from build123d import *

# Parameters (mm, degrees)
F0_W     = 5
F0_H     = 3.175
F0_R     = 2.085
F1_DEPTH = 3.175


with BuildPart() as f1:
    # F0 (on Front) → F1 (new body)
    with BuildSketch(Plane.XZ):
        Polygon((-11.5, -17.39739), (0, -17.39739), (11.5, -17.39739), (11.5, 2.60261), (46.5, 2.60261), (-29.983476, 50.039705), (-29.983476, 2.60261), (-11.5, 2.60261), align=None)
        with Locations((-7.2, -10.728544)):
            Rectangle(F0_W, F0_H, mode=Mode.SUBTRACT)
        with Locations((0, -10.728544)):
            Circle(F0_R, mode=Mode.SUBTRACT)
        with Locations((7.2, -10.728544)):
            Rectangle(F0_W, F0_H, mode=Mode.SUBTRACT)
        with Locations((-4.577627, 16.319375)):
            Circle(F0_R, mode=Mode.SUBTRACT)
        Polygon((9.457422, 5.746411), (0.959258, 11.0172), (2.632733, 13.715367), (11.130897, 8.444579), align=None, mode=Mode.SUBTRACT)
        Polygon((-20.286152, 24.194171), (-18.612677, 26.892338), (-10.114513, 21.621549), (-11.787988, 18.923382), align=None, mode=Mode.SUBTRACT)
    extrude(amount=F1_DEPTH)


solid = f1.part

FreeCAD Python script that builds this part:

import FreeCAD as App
import Part
import Sketcher
from FreeCAD import Vector
Q = App.Units.Quantity


def add_polygon(sketch, points):
    """Adds a closed chain of lines whose ends are joined by coincident constraints."""
    first, n = sketch.GeometryCount, len(points)
    for a, b in zip(points, points[1:] + points[:1]):
        sketch.addGeometry(Part.LineSegment(App.Vector(*a, 0), App.Vector(*b, 0)), False)
    for i in range(n):
        sketch.addConstraint(Sketcher.Constraint("Coincident", first + i, 2, first + (i + 1) % n, 1))

doc = App.newDocument("Part")
params = doc.addObject("Spreadsheet::Sheet", "Params")
for row, (alias, value) in enumerate([
    ("sketch1_diameter", "4.17 mm"),
    ("sketch1_width", "23 mm"),
    ("sketch1_width2", "35 mm"),
    ("sketch1_width3", "5 mm"),
    ("sketch1_height", "20 mm"),
    ("pad1_length", "3.175 mm"),
], start=1):
    params.set(f"A{row}", alias)
    params.set(f"B{row}", "=" + value)
    params.setAlias(f"B{row}", alias)

body = doc.addObject("PartDesign::Body", "Body")

# Sketch on XZ plane
sketch1 = body.newObject("Sketcher::SketchObject", "Sketch")
sketch1.AttachmentSupport = (doc.getObject("XZ_Plane"), [""])
sketch1.MapMode = "FlatFace"
add_polygon(sketch1, [(-11.5, -17.39739), (11.5, -17.39739), (11.5, 2.60261), (46.5, 2.60261), (-29.983476, 50.039705), (-29.983476, 2.60261), (-11.5, 2.60261)])  # lines 0-6
add_polygon(sketch1, [(-4.7, -12.316044), (-9.7, -12.316044), (-9.7, -9.141044), (-4.7, -9.141044)])  # lines 7-10
sketch1.addGeometry(Part.Circle(Vector(0, -10.728544, 0), Vector(0, 0, 1), 2.085), False)  # 11
add_polygon(sketch1, [(9.7, -12.316044), (4.7, -12.316044), (4.7, -9.141044), (9.7, -9.141044)])  # lines 12-15
add_polygon(sketch1, [(-11.787988, 18.923382), (-20.286152, 24.194171), (-18.612677, 26.892338), (-10.114513, 21.621549)])  # lines 16-19
sketch1.addGeometry(Part.Circle(Vector(-4.577627, 16.319375, 0), Vector(0, 0, 1), 2.085), False)  # 20
add_polygon(sketch1, [(11.130897, 8.444579), (9.457422, 5.746411), (0.959258, 11.0172), (2.632733, 13.715367)])  # lines 21-24
sketch1.addConstraint([
    Sketcher.Constraint("Horizontal", 0),
    Sketcher.Constraint("Vertical", 1),
    Sketcher.Constraint("Horizontal", 2),
    Sketcher.Constraint("Vertical", 4),
    Sketcher.Constraint("Horizontal", 5),
    Sketcher.Constraint("Vertical", 6),
    Sketcher.Constraint("Horizontal", 7),
    Sketcher.Constraint("Vertical", 8),
    Sketcher.Constraint("Horizontal", 9),
    Sketcher.Constraint("Vertical", 10),
    Sketcher.Constraint("Horizontal", 12),
    Sketcher.Constraint("Vertical", 13),
    Sketcher.Constraint("Horizontal", 14),
    Sketcher.Constraint("Vertical", 15),
    Sketcher.Constraint("Equal", 11, 20),
    Sketcher.Constraint("Symmetric", 1, 2, 5, 2, -2),
    Sketcher.Constraint("Symmetric", 10, 2, 12, 2, -2),
    Sketcher.Constraint("Symmetric", 8, 2, 14, 2, -2),
    Sketcher.Constraint("PointOnObject", 11, 3, -2),
    Sketcher.Constraint("Parallel", 3, 16),
    Sketcher.Constraint("Perpendicular", 16, 17),
    Sketcher.Constraint("Perpendicular", 17, 18),
    Sketcher.Constraint("Perpendicular", 18, 19),
    Sketcher.Constraint("Parallel", 19, 21),
    Sketcher.Constraint("Perpendicular", 21, 22),
    Sketcher.Constraint("Perpendicular", 22, 23),
    Sketcher.Constraint("Perpendicular", 23, 24),
    Sketcher.Constraint("Equal", 19, 21),
    Sketcher.Constraint("Equal", 18, 22),
    Sketcher.Constraint("Diameter", 11, Q("4.17 mm")),
    Sketcher.Constraint("DistanceX", 0, 1, 0, 2, Q("23 mm")),
    Sketcher.Constraint("DistanceX", 2, 1, 2, 2, Q("35 mm")),
    Sketcher.Constraint("DistanceX", 7, 2, 7, 1, Q("5 mm")),
    Sketcher.Constraint("DistanceY", 1, 1, 1, 2, Q("20 mm")),
    Sketcher.Constraint("Distance", 3, Q("90 mm")),
    Sketcher.Constraint("Distance", 16, Q("10 mm")),
    Sketcher.Constraint("DistanceX", 7, 2, -1, 1, Q("9.7 mm")),
    Sketcher.Constraint("DistanceY", 8, 1, 8, 2, Q("3.175 mm")),
    Sketcher.Constraint("Distance", 17, Q("3.175 mm")),
    Sketcher.Constraint("DistanceY", -1, 1, 22, 2, Q("11.0172 mm")),
    Sketcher.Constraint("DistanceY", 7, 2, 11, 3, Q("1.5875 mm")),
    Sketcher.Constraint("DistanceX", 3, 2, 17, 2, Q("11.370799 mm")),
    Sketcher.Constraint("DistanceY", 1, 2, 21, 2, Q("3.143801 mm")),
    Sketcher.Constraint("DistanceX", 5, 1, 5, 2, Q("18.483476 mm")),
    Sketcher.Constraint("DistanceY", -1, 1, 16, 2, Q("24.194171 mm")),
    Sketcher.Constraint("DistanceX", -1, 1, 21, 2, Q("9.457422 mm")),
    Sketcher.Constraint("DistanceY", 11, 3, 20, 3, Q("27.047919 mm")),
    Sketcher.Constraint("DistanceX", 3, 2, 20, 3, Q("25.405849 mm")),
    Sketcher.Constraint("DistanceY", 20, 3, 3, 2, Q("33.72033 mm")),
])
sketch1.setExpression("Constraints[52]", "Params.sketch1_diameter")
sketch1.setExpression("Constraints[53]", "Params.sketch1_width")
sketch1.setExpression("Constraints[54]", "Params.sketch1_width2")
sketch1.setExpression("Constraints[55]", "Params.sketch1_width3")
sketch1.setExpression("Constraints[56]", "Params.sketch1_height")
pad1 = body.newObject("PartDesign::Pad", "Pad")
pad1.Profile = sketch1
pad1.setExpression("Length", "Params.pad1_length")

doc.recompute()
